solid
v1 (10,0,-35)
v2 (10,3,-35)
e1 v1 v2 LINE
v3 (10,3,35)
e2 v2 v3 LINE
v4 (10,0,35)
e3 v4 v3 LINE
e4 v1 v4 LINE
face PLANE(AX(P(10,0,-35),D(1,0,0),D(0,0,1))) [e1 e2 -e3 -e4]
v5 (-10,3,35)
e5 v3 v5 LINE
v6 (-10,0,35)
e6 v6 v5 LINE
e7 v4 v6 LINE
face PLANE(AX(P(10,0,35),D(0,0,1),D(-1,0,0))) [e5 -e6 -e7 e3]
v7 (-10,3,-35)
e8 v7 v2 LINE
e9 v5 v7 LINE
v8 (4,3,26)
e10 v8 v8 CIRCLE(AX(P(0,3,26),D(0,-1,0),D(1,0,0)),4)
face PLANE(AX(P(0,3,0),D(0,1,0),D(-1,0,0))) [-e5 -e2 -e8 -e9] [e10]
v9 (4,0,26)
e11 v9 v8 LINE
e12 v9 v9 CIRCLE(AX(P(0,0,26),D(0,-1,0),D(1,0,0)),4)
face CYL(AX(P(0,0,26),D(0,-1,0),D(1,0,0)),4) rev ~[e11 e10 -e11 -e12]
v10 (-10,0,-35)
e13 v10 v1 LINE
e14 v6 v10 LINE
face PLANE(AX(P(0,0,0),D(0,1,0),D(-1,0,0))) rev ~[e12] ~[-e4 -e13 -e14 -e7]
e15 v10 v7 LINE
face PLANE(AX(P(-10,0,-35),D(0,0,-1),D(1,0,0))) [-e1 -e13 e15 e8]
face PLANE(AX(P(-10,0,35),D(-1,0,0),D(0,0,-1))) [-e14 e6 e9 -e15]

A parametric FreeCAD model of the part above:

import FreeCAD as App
import Part
import Sketcher
from FreeCAD import Vector
Q = App.Units.Quantity


def add_polygon(sketch, points):
    """Adds a closed chain of lines whose ends are joined by coincident constraints."""
    first, n = sketch.GeometryCount, len(points)
    for a, b in zip(points, points[1:] + points[:1]):
        sketch.addGeometry(Part.LineSegment(App.Vector(*a, 0), App.Vector(*b, 0)), False)
    for i in range(n):
        sketch.addConstraint(Sketcher.Constraint("Coincident", first + i, 2, first + (i + 1) % n, 1))

doc = App.newDocument("Part")
params = doc.addObject("Spreadsheet::Sheet", "Params")
for row, (alias, value) in enumerate([
    ("sketch1_width", "20 mm"),
    ("sketch1_height", "70 mm"),
    ("pad1_length", "3 mm"),
    ("sketch2_diameter", "8 mm"),
    ("pocket1_length", "3 mm"),
], start=1):
    params.set(f"A{row}", alias)
    params.set(f"B{row}", "=" + value)
    params.setAlias(f"B{row}", alias)

body = doc.addObject("PartDesign::Body", "Body")

sketch1 = doc.addObject("Sketcher::SketchObject", "Sketch")
body.addObject(sketch1)
sketch1.AttachmentSupport = (doc.XZ_Plane, [""])
sketch1.MapMode = "FlatFace"
add_polygon(sketch1, [(-10, 35), (10, 35), (10, -35), (-10, -35)])
sketch1.addConstraint(Sketcher.Constraint("Horizontal", 0))
sketch1.addConstraint(Sketcher.Constraint("Vertical", 1))
sketch1.addConstraint(Sketcher.Constraint("Horizontal", 2))
sketch1.addConstraint(Sketcher.Constraint("Vertical", 3))
sketch1.addConstraint(Sketcher.Constraint("Symmetric", 0, 2, 2, 2, -1, 1))
sketch1.addConstraint(Sketcher.Constraint("DistanceX", 0, 1, 0, 2, Q("20 mm")))
sketch1.addConstraint(Sketcher.Constraint("DistanceY", 1, 2, 1, 1, Q("70 mm")))
sketch1.setExpression("Constraints[9]", "Params.sketch1_width")
sketch1.setExpression("Constraints[10]", "Params.sketch1_height")
pad1 = doc.addObject("PartDesign::Pad", "Pad")
body.addObject(pad1)
pad1.Profile = sketch1
pad1.setExpression("Length", "Params.pad1_length")
pad1.Reversed = True

sketch2 = doc.addObject("Sketcher::SketchObject", "Sketch001")
body.addObject(sketch2)
sketch2.AttachmentSupport = (doc.XZ_Plane, [""])
sketch2.MapMode = "FlatFace"
sketch2.addGeometry(Part.Circle(Vector(0, 26, 0), Vector(0, 0, 1), 4), False)
sketch2.addConstraint(Sketcher.Constraint("PointOnObject", 0, 3, -2))
sketch2.addConstraint(Sketcher.Constraint("Diameter", 0, Q("8 mm")))
sketch2.addConstraint(Sketcher.Constraint("DistanceY", -1, 1, 0, 3, Q("26 mm")))
sketch2.setExpression("Constraints[1]", "Params.sketch2_diameter")
pocket1 = doc.addObject("PartDesign::Pocket", "Pocket")
body.addObject(pocket1)
pocket1.Profile = sketch2
pocket1.setExpression("Length", "Params.pocket1_length")

doc.recompute()
